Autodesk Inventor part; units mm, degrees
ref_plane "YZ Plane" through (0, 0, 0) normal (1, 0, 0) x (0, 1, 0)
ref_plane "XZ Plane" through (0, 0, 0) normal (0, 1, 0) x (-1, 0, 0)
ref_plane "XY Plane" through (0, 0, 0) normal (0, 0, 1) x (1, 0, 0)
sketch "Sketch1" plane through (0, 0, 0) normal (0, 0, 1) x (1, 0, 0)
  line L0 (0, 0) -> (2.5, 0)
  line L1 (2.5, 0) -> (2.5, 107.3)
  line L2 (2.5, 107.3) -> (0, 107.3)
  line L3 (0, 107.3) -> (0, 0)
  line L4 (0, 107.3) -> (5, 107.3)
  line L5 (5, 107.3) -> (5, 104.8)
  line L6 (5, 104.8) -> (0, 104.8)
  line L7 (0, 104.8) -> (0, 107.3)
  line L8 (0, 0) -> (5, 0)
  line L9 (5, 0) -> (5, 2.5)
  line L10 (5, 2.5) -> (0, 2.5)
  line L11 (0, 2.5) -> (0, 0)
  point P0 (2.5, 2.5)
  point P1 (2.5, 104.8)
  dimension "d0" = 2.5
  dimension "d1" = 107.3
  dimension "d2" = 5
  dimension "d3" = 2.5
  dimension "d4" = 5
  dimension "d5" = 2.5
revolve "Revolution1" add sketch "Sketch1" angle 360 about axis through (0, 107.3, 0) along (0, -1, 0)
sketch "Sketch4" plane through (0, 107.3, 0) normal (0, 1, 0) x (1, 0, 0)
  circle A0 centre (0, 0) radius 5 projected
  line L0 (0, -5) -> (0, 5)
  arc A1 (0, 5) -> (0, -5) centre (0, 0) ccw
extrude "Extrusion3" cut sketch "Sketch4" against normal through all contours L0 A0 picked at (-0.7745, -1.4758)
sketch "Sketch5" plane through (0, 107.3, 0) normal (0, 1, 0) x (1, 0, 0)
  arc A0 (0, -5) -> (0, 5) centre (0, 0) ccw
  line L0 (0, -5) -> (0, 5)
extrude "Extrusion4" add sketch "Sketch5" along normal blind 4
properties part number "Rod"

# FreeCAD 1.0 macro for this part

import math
import FreeCAD as App
import Part
import Sketcher
from FreeCAD import Vector
Q = App.Units.Quantity


def add_polygon(sketch, points):
    """Adds a closed chain of lines whose ends are joined by coincident constraints."""
    first, n = sketch.GeometryCount, len(points)
    for a, b in zip(points, points[1:] + points[:1]):
        sketch.addGeometry(Part.LineSegment(App.Vector(*a, 0), App.Vector(*b, 0)), False)
    for i in range(n):
        sketch.addConstraint(Sketcher.Constraint("Coincident", first + i, 2, first + (i + 1) % n, 1))

doc = App.newDocument("Part")
body = doc.addObject("PartDesign::Body", "Body")

sketch1 = body.newObject("Sketcher::SketchObject", "Sketch")
sketch1.AttachmentSupport = (doc.getObject("XY_Plane"), [""])
sketch1.MapMode = "FlatFace"
add_polygon(sketch1, [(0, 0), (5, 0), (5, 2.5), (2.5, 2.5), (2.5, 104.8), (5, 104.8), (5, 107.3), (0, 107.3)])
sketch1.addConstraint([
    Sketcher.Constraint("Horizontal", 0),
    Sketcher.Constraint("Vertical", 1),
    Sketcher.Constraint("Horizontal", 2),
    Sketcher.Constraint("Vertical", 3),
    Sketcher.Constraint("Horizontal", 4),
    Sketcher.Constraint("Vertical", 5),
    Sketcher.Constraint("Horizontal", 6),
    Sketcher.Constraint("Vertical", 7),
    Sketcher.Constraint("Coincident", 7, 2, -1, 1),
    Sketcher.Constraint("Vertical", 1, 2, 4, 2),
    Sketcher.Constraint("Equal", 4, 1),
    Sketcher.Constraint("Equal", 1, 5),
    Sketcher.Constraint("DistanceX", 0, 1, 0, 2, Q("5 mm")),
    Sketcher.Constraint("DistanceX", 2, 2, 2, 1, Q("2.5 mm")),
    Sketcher.Constraint("DistanceY", 7, 2, 7, 1, Q("107.3 mm")),
])
revolution = body.newObject("PartDesign::Revolution", "Revolution")
revolution.Profile = sketch1
revolution.ReferenceAxis = (sketch1, ["V_Axis"])
revolution.Angle = 360

sketch2 = body.newObject("Sketcher::SketchObject", "Sketch001")
sketch2.AttachmentSupport = (doc.getObject("XZ_Plane"), [""])
sketch2.MapMode = "FlatFace"
sketch2.AttachmentOffset = App.Placement(Vector(0, 0, -107.3), App.Rotation())
sketch2.addGeometry([
    Part.LineSegment(Vector(0, 5, 0), Vector(0, -5, 0)),
    Part.ArcOfCircle(Part.Circle(Vector(0, 0, 0), Vector(0, 0, 1), 5), math.radians(90), math.radians(270)),
], False)
sketch2.addConstraint([
    Sketcher.Constraint("Coincident", 0, 1, 1, 1),
    Sketcher.Constraint("Coincident", 1, 2, 0, 2),
    Sketcher.Constraint("Vertical", 0),
    Sketcher.Constraint("Coincident", 1, 3, -1, 1),
    Sketcher.Constraint("PointOnObject", 0, 1, -2),
    Sketcher.Constraint("Radius", 1, Q("5 mm")),
])
pocket1 = body.newObject("PartDesign::Pocket", "Pocket")
pocket1.Profile = sketch2
pocket1.Type = "ThroughAll"
pocket1.Reversed = True

sketch3 = body.newObject("Sketcher::SketchObject", "Sketch002")
sketch3.AttachmentSupport = (doc.getObject("XZ_Plane"), [""])
sketch3.MapMode = "FlatFace"
sketch3.AttachmentOffset = App.Placement(Vector(0, 0, -107.3), App.Rotation())
sketch3.addGeometry([
    Part.LineSegment(Vector(0, -5, 0), Vector(0, 5, 0)),
    Part.ArcOfCircle(Part.Circle(Vector(0, 0, 0), Vector(0, 0, 1), 5), math.radians(-90), math.radians(90)),
], False)
sketch3.addConstraint([
    Sketcher.Constraint("Coincident", 0, 1, 1, 1),
    Sketcher.Constraint("Coincident", 1, 2, 0, 2),
    Sketcher.Constraint("Vertical", 0),
    Sketcher.Constraint("Coincident", 1, 3, -1, 1),
    Sketcher.Constraint("PointOnObject", 0, 1, -2),
    Sketcher.Constraint("Radius", 1, Q("5 mm")),
])
pad1 = body.newObject("PartDesign::Pad", "Pad")
pad1.Profile = sketch3
pad1.Length = 4
pad1.Reversed = True

doc.recompute()
